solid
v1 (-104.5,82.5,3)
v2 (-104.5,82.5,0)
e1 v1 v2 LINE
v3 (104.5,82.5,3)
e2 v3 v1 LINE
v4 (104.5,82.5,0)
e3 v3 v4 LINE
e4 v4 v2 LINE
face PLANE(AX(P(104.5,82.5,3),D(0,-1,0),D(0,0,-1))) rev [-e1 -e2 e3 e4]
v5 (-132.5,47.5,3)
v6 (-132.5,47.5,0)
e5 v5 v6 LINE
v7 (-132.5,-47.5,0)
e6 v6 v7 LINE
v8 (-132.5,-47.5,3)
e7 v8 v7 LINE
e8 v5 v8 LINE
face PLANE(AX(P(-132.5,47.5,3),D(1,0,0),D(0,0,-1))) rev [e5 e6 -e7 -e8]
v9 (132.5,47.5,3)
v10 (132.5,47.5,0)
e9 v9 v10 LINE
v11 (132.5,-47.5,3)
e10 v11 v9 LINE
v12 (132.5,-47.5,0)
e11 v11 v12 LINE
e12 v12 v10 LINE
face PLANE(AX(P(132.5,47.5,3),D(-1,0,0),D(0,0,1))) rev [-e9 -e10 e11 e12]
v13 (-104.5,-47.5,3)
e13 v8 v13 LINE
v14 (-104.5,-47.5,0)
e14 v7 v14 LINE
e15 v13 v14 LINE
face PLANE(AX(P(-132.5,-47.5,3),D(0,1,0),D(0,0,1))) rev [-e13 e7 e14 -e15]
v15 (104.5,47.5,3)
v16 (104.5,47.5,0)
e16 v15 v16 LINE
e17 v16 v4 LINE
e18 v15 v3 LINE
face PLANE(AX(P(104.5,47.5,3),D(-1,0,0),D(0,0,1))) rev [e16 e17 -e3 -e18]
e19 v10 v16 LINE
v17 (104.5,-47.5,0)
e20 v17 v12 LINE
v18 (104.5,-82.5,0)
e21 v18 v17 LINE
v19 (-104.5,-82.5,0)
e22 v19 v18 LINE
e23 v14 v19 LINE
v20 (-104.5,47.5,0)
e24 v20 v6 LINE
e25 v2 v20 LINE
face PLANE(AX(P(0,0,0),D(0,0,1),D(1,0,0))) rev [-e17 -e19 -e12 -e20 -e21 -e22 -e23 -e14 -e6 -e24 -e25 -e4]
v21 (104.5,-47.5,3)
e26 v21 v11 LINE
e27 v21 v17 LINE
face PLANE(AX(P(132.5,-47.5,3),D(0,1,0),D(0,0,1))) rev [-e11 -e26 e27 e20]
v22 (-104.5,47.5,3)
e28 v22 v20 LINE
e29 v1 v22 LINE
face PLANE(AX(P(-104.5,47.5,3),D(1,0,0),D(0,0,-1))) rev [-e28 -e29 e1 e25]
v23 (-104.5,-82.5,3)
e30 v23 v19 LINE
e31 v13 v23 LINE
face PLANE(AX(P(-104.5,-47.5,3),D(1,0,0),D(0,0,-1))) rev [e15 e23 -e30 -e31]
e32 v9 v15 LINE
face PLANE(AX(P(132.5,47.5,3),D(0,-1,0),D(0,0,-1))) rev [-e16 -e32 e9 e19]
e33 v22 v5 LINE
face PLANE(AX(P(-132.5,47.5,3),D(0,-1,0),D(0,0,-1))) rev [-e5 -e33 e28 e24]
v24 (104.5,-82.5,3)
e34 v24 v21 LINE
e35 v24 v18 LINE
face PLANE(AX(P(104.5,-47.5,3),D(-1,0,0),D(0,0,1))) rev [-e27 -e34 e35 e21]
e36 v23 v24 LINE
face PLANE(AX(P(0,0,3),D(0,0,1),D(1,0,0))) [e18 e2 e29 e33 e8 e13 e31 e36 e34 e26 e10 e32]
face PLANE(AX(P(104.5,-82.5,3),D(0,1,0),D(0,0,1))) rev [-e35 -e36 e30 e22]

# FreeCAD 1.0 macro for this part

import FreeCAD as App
import Part
import Sketcher
from FreeCAD import Vector


def add_polygon(sketch, points):
    """Adds a closed chain of lines whose ends are joined by coincident constraints."""
    first, n = sketch.GeometryCount, len(points)
    for a, b in zip(points, points[1:] + points[:1]):
        sketch.addGeometry(Part.LineSegment(App.Vector(*a, 0), App.Vector(*b, 0)), False)
    for i in range(n):
        sketch.addConstraint(Sketcher.Constraint("Coincident", first + i, 2, first + (i + 1) % n, 1))

doc = App.newDocument("Part")
body = doc.addObject("PartDesign::Body", "Body")

sketch1 = doc.addObject("Sketcher::SketchObject", "Sketch")
body.addObject(sketch1)
sketch1.AttachmentSupport = (doc.XY_Plane, [""])
sketch1.MapMode = "FlatFace"
add_polygon(sketch1, [(104.5, 82.5), (-104.5, 82.5), (-104.5, 47.5), (-132.5, 47.5), (-132.5, -47.5), (-104.5, -47.5), (-104.5, -82.5), (104.5, -82.5), (104.5, -47.5), (132.5, -47.5), (132.5, 47.5), (104.5, 47.5)])
sketch1.addConstraint([
    Sketcher.Constraint("Horizontal", 0),
    Sketcher.Constraint("Vertical", 1),
    Sketcher.Constraint("Horizontal", 2),
    Sketcher.Constraint("Vertical", 3),
    Sketcher.Constraint("Horizontal", 4),
    Sketcher.Constraint("Vertical", 5),
    Sketcher.Constraint("Horizontal", 6),
    Sketcher.Constraint("Vertical", 7),
    Sketcher.Constraint("Horizontal", 8),
    Sketcher.Constraint("Vertical", 9),
    Sketcher.Constraint("Horizontal", 10),
    Sketcher.Constraint("Vertical", 11),
    Sketcher.Constraint("Symmetric", 0, 2, 6, 2, -1, 1),
    Sketcher.Constraint("Symmetric", 2, 2, 8, 2, -1, 1),
    Sketcher.Constraint("Symmetric", 4, 2, 10, 2, -1, 1),
    Sketcher.Constraint("Symmetric", 4, 2, 7, 2, -2),
    Sketcher.Constraint("DistanceX", 0, 2, 0, 1, 209.0),
    Sketcher.Constraint("DistanceX", 2, 2, 2, 1, 28.0),
    Sketcher.Constraint("DistanceY", 1, 2, 1, 1, 35.0),
    Sketcher.Constraint("DistanceY", 3, 2, 3, 1, 95.0),
])
pad1 = doc.addObject("PartDesign::Pad", "Pad")
body.addObject(pad1)
pad1.Profile = sketch1
pad1.Length = 3

doc.recompute()
